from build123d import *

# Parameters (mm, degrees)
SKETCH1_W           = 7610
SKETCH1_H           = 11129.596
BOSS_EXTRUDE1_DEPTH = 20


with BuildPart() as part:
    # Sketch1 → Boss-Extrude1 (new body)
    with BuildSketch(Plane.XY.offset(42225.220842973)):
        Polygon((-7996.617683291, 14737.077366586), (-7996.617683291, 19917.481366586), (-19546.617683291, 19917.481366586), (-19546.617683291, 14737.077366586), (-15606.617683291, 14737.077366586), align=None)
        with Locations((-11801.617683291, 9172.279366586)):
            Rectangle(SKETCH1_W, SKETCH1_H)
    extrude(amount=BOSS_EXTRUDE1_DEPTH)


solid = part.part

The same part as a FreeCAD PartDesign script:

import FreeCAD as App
import Part
import Sketcher

V = App.Vector
Q = App.Units.Quantity


def add_polygon(sketch, points):
    """Adds a closed chain of lines whose ends are joined by coincident constraints."""
    first, n = sketch.GeometryCount, len(points)
    for a, b in zip(points, points[1:] + points[:1]):
        sketch.addGeometry(Part.LineSegment(App.Vector(*a, 0), App.Vector(*b, 0)), False)
    for i in range(n):
        sketch.addConstraint(Sketcher.Constraint("Coincident", first + i, 2, first + (i + 1) % n, 1))

doc = App.newDocument("Part")
body = doc.addObject("PartDesign::Body", "Body")

# Sketch on XY plane
sketch1 = body.newObject("Sketcher::SketchObject", "Sketch")
sketch1.AttachmentSupport = (doc.getObject("XY_Plane"), [""])
sketch1.MapMode = "FlatFace"
sketch1.AttachmentOffset = App.Placement(V(0, 0, 42225.220843), App.Rotation())
add_polygon(sketch1, [(-7997, 19917), (-19547, 19917), (-19547, 14737), (-15607, 14737), (-15607, 3607), (-7997, 3607)])  # lines 0-5
sketch1.addConstraint(Sketcher.Constraint("Horizontal", 0))
sketch1.addConstraint(Sketcher.Constraint("Vertical", 1))
sketch1.addConstraint(Sketcher.Constraint("Horizontal", 2))
sketch1.addConstraint(Sketcher.Constraint("Vertical", 3))
sketch1.addConstraint(Sketcher.Constraint("Horizontal", 4))
sketch1.addConstraint(Sketcher.Constraint("Vertical", 5))
sketch1.addConstraint(Sketcher.Constraint("DistanceX", 0, 2, 0, 1, Q("11550 mm")))
sketch1.addConstraint(Sketcher.Constraint("DistanceX", 2, 1, 2, 2, Q("3940 mm")))
sketch1.addConstraint(Sketcher.Constraint("DistanceY", 5, 1, 5, 2, Q("16310 mm")))
sketch1.addConstraint(Sketcher.Constraint("DistanceY", 1, 2, 1, 1, Q("5180.404 mm")))
sketch1.addConstraint(Sketcher.Constraint("DistanceX", 0, 2, -1, 1, Q("19546.617683 mm")))
sketch1.addConstraint(Sketcher.Constraint("DistanceY", -1, 1, 0, 2, Q("19917.481367 mm")))
pad1 = body.newObject("PartDesign::Pad", "Pad")
pad1.Profile = sketch1
pad1.Length = 20

doc.recompute()
